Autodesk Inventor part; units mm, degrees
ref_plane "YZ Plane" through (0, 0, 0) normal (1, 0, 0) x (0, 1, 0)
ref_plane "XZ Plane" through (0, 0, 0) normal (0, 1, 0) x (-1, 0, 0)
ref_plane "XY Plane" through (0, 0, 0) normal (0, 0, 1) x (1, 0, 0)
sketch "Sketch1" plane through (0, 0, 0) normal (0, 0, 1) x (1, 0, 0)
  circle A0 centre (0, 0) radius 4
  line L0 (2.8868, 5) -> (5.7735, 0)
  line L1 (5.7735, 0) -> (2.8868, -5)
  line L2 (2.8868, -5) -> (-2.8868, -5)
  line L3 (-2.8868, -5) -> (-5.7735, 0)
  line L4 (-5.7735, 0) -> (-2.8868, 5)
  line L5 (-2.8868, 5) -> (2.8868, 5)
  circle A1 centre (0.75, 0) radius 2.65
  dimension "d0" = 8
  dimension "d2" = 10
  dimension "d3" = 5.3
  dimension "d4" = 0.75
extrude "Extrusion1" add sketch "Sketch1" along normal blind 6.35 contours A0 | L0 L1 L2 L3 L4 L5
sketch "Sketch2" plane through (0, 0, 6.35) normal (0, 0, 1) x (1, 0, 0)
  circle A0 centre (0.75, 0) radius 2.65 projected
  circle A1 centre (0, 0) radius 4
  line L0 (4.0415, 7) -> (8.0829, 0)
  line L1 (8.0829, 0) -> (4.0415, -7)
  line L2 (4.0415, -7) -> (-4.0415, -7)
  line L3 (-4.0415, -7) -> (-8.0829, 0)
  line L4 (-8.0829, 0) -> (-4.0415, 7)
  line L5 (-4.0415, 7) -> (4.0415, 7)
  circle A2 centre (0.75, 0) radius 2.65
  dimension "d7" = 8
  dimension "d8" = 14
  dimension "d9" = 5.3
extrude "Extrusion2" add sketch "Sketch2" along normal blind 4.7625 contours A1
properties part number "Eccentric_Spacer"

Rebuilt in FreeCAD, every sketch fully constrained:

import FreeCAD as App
import Part
import Sketcher
from FreeCAD import Vector
Q = App.Units.Quantity


def add_polygon(sketch, points):
    """Adds a closed chain of lines whose ends are joined by coincident constraints."""
    first, n = sketch.GeometryCount, len(points)
    for a, b in zip(points, points[1:] + points[:1]):
        sketch.addGeometry(Part.LineSegment(App.Vector(*a, 0), App.Vector(*b, 0)), False)
    for i in range(n):
        sketch.addConstraint(Sketcher.Constraint("Coincident", first + i, 2, first + (i + 1) % n, 1))

doc = App.newDocument("Part")
body = doc.addObject("PartDesign::Body", "Body")

sketch1 = doc.addObject("Sketcher::SketchObject", "Sketch")
body.addObject(sketch1)
sketch1.AttachmentSupport = (doc.XY_Plane, [""])
sketch1.MapMode = "FlatFace"
add_polygon(sketch1, [(5.8, 0), (2.9, 5), (-2.9, 5), (-5.8, 0), (-2.9, -5), (2.9, -5)])
sketch1.addGeometry(Part.Circle(Vector(0.8, 0, 0), Vector(0, 0, 1), 2.6), False)
sketch1.addConstraint(Sketcher.Constraint("Horizontal", 1))
sketch1.addConstraint(Sketcher.Constraint("Horizontal", 4))
sketch1.addConstraint(Sketcher.Constraint("Symmetric", 0, 2, 3, 2, -1, 1))
sketch1.addConstraint(Sketcher.Constraint("Symmetric", 2, 2, 5, 2, -1, 1))
sketch1.addConstraint(Sketcher.Constraint("PointOnObject", 6, 3, -1))
sketch1.addConstraint(Sketcher.Constraint("PointOnObject", 2, 2, -1))
sketch1.addConstraint(Sketcher.Constraint("Parallel", 2, 5))
sketch1.addConstraint(Sketcher.Constraint("Vertical", 1, 2, 3, 2))
sketch1.addConstraint(Sketcher.Constraint("Diameter", 6, Q("5.3 mm")))
sketch1.addConstraint(Sketcher.Constraint("DistanceY", 3, 2, 1, 2, Q("10 mm")))
sketch1.addConstraint(Sketcher.Constraint("DistanceX", -1, 1, 6, 3, Q("0.75 mm")))
sketch1.addConstraint(Sketcher.Constraint("Angle", 0, Q("119.9996 deg")))
sketch1.addConstraint(Sketcher.Constraint("DistanceX", 1, 2, 1, 1, Q("5.7736 mm")))
pad1 = doc.addObject("PartDesign::Pad", "Pad")
body.addObject(pad1)
pad1.Profile = sketch1
pad1.Length = 6.35

sketch2 = doc.addObject("Sketcher::SketchObject", "Sketch001")
body.addObject(sketch2)
sketch2.AttachmentSupport = (doc.XY_Plane, [""])
sketch2.MapMode = "FlatFace"
sketch2.AttachmentOffset = App.Placement(Vector(0, 0, 6.35), App.Rotation())
sketch2.addGeometry(Part.Circle(Vector(0, 0, 0), Vector(0, 0, 1), 4), False)
sketch2.addGeometry(Part.Circle(Vector(0.8, 0, 0), Vector(0, 0, 1), 2.6), False)
sketch2.addConstraint(Sketcher.Constraint("Coincident", 0, 3, -1, 1))
sketch2.addConstraint(Sketcher.Constraint("PointOnObject", 1, 3, -1))
sketch2.addConstraint(Sketcher.Constraint("Diameter", 0, Q("8 mm")))
sketch2.addConstraint(Sketcher.Constraint("Diameter", 1, Q("5.3 mm")))
sketch2.addConstraint(Sketcher.Constraint("DistanceX", -1, 1, 1, 3, Q("0.75 mm")))
pad2 = doc.addObject("PartDesign::Pad", "Pad001")
body.addObject(pad2)
pad2.Profile = sketch2
pad2.Length = 4.7625

doc.recompute()
